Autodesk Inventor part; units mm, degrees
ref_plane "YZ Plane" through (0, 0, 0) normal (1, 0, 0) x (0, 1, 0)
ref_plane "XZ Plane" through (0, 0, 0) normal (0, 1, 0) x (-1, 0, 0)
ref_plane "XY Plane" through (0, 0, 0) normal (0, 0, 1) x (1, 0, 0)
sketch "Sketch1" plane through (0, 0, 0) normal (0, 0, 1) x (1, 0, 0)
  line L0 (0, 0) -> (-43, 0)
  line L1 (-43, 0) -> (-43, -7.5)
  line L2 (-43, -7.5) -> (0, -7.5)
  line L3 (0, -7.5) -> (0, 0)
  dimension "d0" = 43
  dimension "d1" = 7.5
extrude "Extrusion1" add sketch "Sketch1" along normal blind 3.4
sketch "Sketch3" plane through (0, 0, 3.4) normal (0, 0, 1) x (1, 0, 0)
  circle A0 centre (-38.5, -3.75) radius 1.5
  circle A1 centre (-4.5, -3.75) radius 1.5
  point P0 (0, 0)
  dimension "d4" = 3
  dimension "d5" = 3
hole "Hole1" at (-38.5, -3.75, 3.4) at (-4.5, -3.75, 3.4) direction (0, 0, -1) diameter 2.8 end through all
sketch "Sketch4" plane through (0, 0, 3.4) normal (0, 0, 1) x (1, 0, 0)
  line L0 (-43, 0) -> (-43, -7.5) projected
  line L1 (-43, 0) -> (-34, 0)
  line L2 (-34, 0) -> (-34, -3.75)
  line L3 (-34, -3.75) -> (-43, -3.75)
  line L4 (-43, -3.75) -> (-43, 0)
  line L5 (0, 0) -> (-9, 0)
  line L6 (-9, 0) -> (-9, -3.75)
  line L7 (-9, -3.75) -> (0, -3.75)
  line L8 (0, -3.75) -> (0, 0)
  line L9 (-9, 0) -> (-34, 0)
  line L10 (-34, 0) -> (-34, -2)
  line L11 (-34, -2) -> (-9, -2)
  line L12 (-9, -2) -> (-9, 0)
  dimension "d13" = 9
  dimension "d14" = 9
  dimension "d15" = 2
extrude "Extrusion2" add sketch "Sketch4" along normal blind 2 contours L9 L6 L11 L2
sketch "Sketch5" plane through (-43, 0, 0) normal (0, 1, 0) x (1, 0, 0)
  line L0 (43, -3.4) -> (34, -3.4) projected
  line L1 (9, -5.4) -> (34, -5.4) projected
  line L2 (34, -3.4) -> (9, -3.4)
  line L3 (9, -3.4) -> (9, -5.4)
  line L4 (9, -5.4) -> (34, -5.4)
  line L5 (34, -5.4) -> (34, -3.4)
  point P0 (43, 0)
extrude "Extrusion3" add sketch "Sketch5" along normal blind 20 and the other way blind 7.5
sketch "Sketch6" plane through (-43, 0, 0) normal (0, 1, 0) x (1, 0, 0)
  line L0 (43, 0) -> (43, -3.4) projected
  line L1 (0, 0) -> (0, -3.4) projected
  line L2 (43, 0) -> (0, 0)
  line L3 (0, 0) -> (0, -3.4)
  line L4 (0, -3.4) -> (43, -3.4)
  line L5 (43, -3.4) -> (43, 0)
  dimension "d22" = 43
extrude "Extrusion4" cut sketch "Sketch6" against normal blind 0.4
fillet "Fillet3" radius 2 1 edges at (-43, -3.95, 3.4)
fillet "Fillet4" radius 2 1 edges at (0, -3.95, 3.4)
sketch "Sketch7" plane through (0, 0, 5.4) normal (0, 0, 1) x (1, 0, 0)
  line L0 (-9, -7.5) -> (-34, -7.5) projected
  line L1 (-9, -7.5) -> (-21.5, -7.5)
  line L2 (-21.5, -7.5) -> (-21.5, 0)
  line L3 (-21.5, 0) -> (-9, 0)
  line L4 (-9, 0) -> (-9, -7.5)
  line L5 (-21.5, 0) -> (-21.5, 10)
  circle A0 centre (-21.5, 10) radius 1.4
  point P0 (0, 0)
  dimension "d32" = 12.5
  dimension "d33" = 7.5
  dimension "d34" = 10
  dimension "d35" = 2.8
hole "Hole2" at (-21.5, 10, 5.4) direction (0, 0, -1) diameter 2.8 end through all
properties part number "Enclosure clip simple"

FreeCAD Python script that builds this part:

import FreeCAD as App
import Part
import Sketcher

V = App.Vector
Q = App.Units.Quantity


def edges_at(feature, points):
    """Names of the edges that pass closest to the given points."""
    edges = feature.Shape.Edges
    near = lambda p: min(range(len(edges)), key=lambda i: edges[i].distToShape(Part.Vertex(*p))[0])
    return sorted({f"Edge{near(p) + 1}" for p in points})


def add_polygon(sketch, points):
    """Adds a closed chain of lines whose ends are joined by coincident constraints."""
    first, n = sketch.GeometryCount, len(points)
    for a, b in zip(points, points[1:] + points[:1]):
        sketch.addGeometry(Part.LineSegment(App.Vector(*a, 0), App.Vector(*b, 0)), False)
    for i in range(n):
        sketch.addConstraint(Sketcher.Constraint("Coincident", first + i, 2, first + (i + 1) % n, 1))

doc = App.newDocument("Part")
body = doc.addObject("PartDesign::Body", "Body")

# Sketch on XY plane
sketch1 = doc.addObject("Sketcher::SketchObject", "Sketch")
body.addObject(sketch1)
sketch1.AttachmentSupport = (doc.XY_Plane, [""])
sketch1.MapMode = "FlatFace"
add_polygon(sketch1, [(0, -7.5), (0, 0), (-43, 0), (-43, -7.5)])  # lines 0-3
sketch1.addConstraint([
    Sketcher.Constraint("Vertical", 0),
    Sketcher.Constraint("Horizontal", 1),
    Sketcher.Constraint("Vertical", 2),
    Sketcher.Constraint("Horizontal", 3),
    Sketcher.Constraint("Coincident", 0, 2, -1, 1),
    Sketcher.Constraint("DistanceX", 1, 2, 1, 1, Q("43 mm")),
    Sketcher.Constraint("DistanceY", 0, 1, 0, 2, Q("7.5 mm")),
])
pad1 = doc.addObject("PartDesign::Pad", "Pad")
body.addObject(pad1)
pad1.Profile = sketch1
pad1.Length = 3.4

# Sketch on XY plane
sketch2 = doc.addObject("Sketcher::SketchObject", "Sketch001")
body.addObject(sketch2)
sketch2.AttachmentSupport = (doc.XY_Plane, [""])
sketch2.MapMode = "FlatFace"
sketch2.AttachmentOffset = App.Placement(V(0, 0, 3.4), App.Rotation())
sketch2.addGeometry([
    Part.Circle(V(-38.5, -3.75, 0), V(0, 0, 1), 1.4),
    Part.Circle(V(-4.5, -3.75, 0), V(0, 0, 1), 1.4),
], False)
sketch2.addConstraint([
    Sketcher.Constraint("Equal", 0, 1),
    Sketcher.Constraint("Horizontal", 0, 3, 1, 3),
    Sketcher.Constraint("Diameter", 0, Q("2.8 mm")),
    Sketcher.Constraint("DistanceX", 0, 3, 1, 3, Q("34 mm")),
    Sketcher.Constraint("DistanceX", 0, 3, -1, 1, Q("38.5 mm")),
    Sketcher.Constraint("DistanceY", 0, 3, -1, 1, Q("3.75 mm")),
])
doc.recompute()
hole = doc.addObject("PartDesign::Hole", "Hole")
body.addObject(hole)
hole.Profile = sketch2
hole.ThreadType = "None"
hole.Diameter = 2.8
hole.DepthType = "ThroughAll"

# Sketch on XY plane
sketch3 = doc.addObject("Sketcher::SketchObject", "Sketch002")
body.addObject(sketch3)
sketch3.AttachmentSupport = (doc.XY_Plane, [""])
sketch3.MapMode = "FlatFace"
sketch3.AttachmentOffset = App.Placement(V(0, 0, 3.4), App.Rotation())
add_polygon(sketch3, [(-9, 0), (-34, 0), (-34, -2), (-9, -2)])  # lines 0-3
sketch3.addConstraint([
    Sketcher.Constraint("Horizontal", 0),
    Sketcher.Constraint("Vertical", 1),
    Sketcher.Constraint("Horizontal", 2),
    Sketcher.Constraint("Vertical", 3),
    Sketcher.Constraint("PointOnObject", 0, 2, -1),
    Sketcher.Constraint("DistanceY", 1, 2, 1, 1, Q("2 mm")),
    Sketcher.Constraint("DistanceX", 2, 2, -1, 1, Q("9 mm")),
    Sketcher.Constraint("DistanceX", 0, 2, 0, 1, Q("25 mm")),
])
pad2 = doc.addObject("PartDesign::Pad", "Pad001")
body.addObject(pad2)
pad2.Profile = sketch3
pad2.Length = 2

# Sketch on XZ plane
sketch4 = doc.addObject("Sketcher::SketchObject", "Sketch003")
body.addObject(sketch4)
sketch4.AttachmentSupport = (doc.XZ_Plane, [""])
sketch4.MapMode = "FlatFace"
add_polygon(sketch4, [(-34, 3.4), (-34, 5.4), (-9, 5.4), (-9, 3.4)])  # lines 0-3
sketch4.addConstraint([
    Sketcher.Constraint("Vertical", 0),
    Sketcher.Constraint("Horizontal", 1),
    Sketcher.Constraint("Vertical", 2),
    Sketcher.Constraint("Horizontal", 3),
    Sketcher.Constraint("DistanceX", 1, 1, 1, 2, Q("25 mm")),
    Sketcher.Constraint("DistanceY", 0, 1, 0, 2, Q("2 mm")),
    Sketcher.Constraint("DistanceX", 0, 2, -1, 1, Q("34 mm")),
    Sketcher.Constraint("DistanceY", -1, 1, 0, 2, Q("5.4 mm")),
])
pad3 = doc.addObject("PartDesign::Pad", "Pad002")
body.addObject(pad3)
pad3.Profile = sketch4
pad3.Type = "TwoLengths"
pad3.Length = 20
pad3.Length2 = 7.5
pad3.Reversed = True

# Sketch on XZ plane
sketch5 = doc.addObject("Sketcher::SketchObject", "Sketch004")
body.addObject(sketch5)
sketch5.AttachmentSupport = (doc.XZ_Plane, [""])
sketch5.MapMode = "FlatFace"
add_polygon(sketch5, [(0, 3.4), (0, 0), (-43, 0), (-43, 3.4)])  # lines 0-3
sketch5.addConstraint([
    Sketcher.Constraint("Vertical", 0),
    Sketcher.Constraint("Horizontal", 1),
    Sketcher.Constraint("Vertical", 2),
    Sketcher.Constraint("Horizontal", 3),
    Sketcher.Constraint("Coincident", 0, 2, -1, 1),
    Sketcher.Constraint("DistanceX", 1, 2, 1, 1, Q("43 mm")),
    Sketcher.Constraint("DistanceY", 0, 2, 0, 1, Q("3.4 mm")),
])
pocket1 = doc.addObject("PartDesign::Pocket", "Pocket")
body.addObject(pocket1)
pocket1.Profile = sketch5
pocket1.Length = 0.4
pocket1.Reversed = True
doc.recompute()

fillet = doc.addObject("PartDesign::Fillet", "Fillet")
body.addObject(fillet)
fillet.Base = (pocket1, edges_at(pocket1, [(-43, -3.95, 3.4)]))
fillet.Radius = 2
doc.recompute()

fillet2 = doc.addObject("PartDesign::Fillet", "Fillet001")
body.addObject(fillet2)
fillet2.Base = (fillet, edges_at(fillet, [(0, -3.95, 3.4)]))
fillet2.Radius = 2

# Sketch on XY plane
sketch6 = doc.addObject("Sketcher::SketchObject", "Sketch005")
body.addObject(sketch6)
sketch6.AttachmentSupport = (doc.XY_Plane, [""])
sketch6.MapMode = "FlatFace"
sketch6.AttachmentOffset = App.Placement(V(0, 0, 5.4), App.Rotation())
sketch6.addGeometry(Part.Circle(V(-21.5, 10, 0), V(0, 0, 1), 1.4), False)
sketch6.addConstraint([
    Sketcher.Constraint("Diameter", 0, Q("2.8 mm")),
    Sketcher.Constraint("DistanceY", -1, 1, 0, 3, Q("10 mm")),
    Sketcher.Constraint("DistanceX", 0, 3, -1, 1, Q("21.5 mm")),
])
doc.recompute()
hole2 = doc.addObject("PartDesign::Hole", "Hole001")
body.addObject(hole2)
hole2.Profile = sketch6
hole2.ThreadType = "None"
hole2.Diameter = 2.8
hole2.DepthType = "ThroughAll"

doc.recompute()
